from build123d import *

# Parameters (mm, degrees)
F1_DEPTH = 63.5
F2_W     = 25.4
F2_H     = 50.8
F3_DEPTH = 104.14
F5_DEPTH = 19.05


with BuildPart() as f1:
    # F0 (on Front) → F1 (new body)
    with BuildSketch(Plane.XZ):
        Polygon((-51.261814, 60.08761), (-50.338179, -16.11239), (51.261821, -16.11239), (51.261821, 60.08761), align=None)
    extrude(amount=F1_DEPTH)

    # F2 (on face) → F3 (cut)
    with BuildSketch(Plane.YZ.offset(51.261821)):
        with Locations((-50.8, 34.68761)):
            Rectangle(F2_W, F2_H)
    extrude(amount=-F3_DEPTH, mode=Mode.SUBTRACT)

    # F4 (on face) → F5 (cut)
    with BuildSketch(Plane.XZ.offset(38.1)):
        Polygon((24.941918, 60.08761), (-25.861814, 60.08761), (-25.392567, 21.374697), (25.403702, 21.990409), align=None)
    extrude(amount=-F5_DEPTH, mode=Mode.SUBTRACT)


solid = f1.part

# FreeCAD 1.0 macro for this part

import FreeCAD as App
import Part
import Sketcher
from FreeCAD import Vector
Q = App.Units.Quantity

doc = App.newDocument("Part")
params = doc.addObject("Spreadsheet::Sheet", "Params")
for row, (alias, value) in enumerate([
    ("sketch1_width", "4 in"),
    ("sketch1_height", "3 in"),
    ("pad1_length", "2.5 in"),
    ("sketch2_width", "1 in"),
    ("sketch2_height", "2 in"),
    ("pocket1_length", "4.1 in"),
    ("sketch3_length", "2 in"),
    ("sketch3_length2", "1.5 in"),
    ("pocket2_length", "0.75 in"),
], start=1):
    params.set(f"A{row}", alias)
    params.set(f"B{row}", "=" + value)
    params.setAlias(f"B{row}", alias)

body = doc.addObject("PartDesign::Body", "Body")

# Sketch on XZ plane
sketch1 = body.newObject("Sketcher::SketchObject", "Sketch")
sketch1.AttachmentSupport = (doc.getObject("XZ_Plane"), [""])
sketch1.MapMode = "FlatFace"
sketch1.addGeometry(Part.LineSegment(Vector(-51, 60, 0), Vector(-50, -16, 0)), False)
sketch1.addGeometry(Part.LineSegment(Vector(-50, -16, 0), Vector(51, -16, 0)), False)
sketch1.addGeometry(Part.LineSegment(Vector(51, -16, 0), Vector(51, 60, 0)), False)
sketch1.addGeometry(Part.LineSegment(Vector(51, 60, 0), Vector(-51, 60, 0)), False)
sketch1.addConstraint(Sketcher.Constraint("Coincident", 0, 2, 1, 1))
sketch1.addConstraint(Sketcher.Constraint("Coincident", 1, 2, 2, 1))
sketch1.addConstraint(Sketcher.Constraint("Coincident", 2, 2, 3, 1))
sketch1.addConstraint(Sketcher.Constraint("Coincident", 3, 2, 0, 1))
sketch1.addConstraint(Sketcher.Constraint("Horizontal", 1))
sketch1.addConstraint(Sketcher.Constraint("Vertical", 2))
sketch1.addConstraint(Sketcher.Constraint("Horizontal", 3))
sketch1.addConstraint(Sketcher.Constraint("DistanceX", 1, 1, 1, 2, Q("4 in")))
sketch1.addConstraint(Sketcher.Constraint("DistanceY", 2, 1, 2, 2, Q("3 in")))
sketch1.addConstraint(Sketcher.Constraint("DistanceX", 3, 2, 3, 1, Q("102.523635 mm")))
sketch1.addConstraint(Sketcher.Constraint("DistanceX", 0, 2, -1, 1, Q("50.338179 mm")))
sketch1.addConstraint(Sketcher.Constraint("DistanceY", 0, 2, -1, 1, Q("16.11239 mm")))
sketch1.setExpression("Constraints[7]", "Params.sketch1_width")
sketch1.setExpression("Constraints[8]", "Params.sketch1_height")
pad1 = body.newObject("PartDesign::Pad", "Pad")
pad1.Profile = sketch1
pad1.setExpression("Length", "Params.pad1_length")

# Sketch on YZ plane
sketch2 = body.newObject("Sketcher::SketchObject", "Sketch001")
sketch2.AttachmentSupport = (doc.getObject("YZ_Plane"), [""])
sketch2.MapMode = "FlatFace"
sketch2.AttachmentOffset = App.Placement(Vector(0, 0, 51.261821), App.Rotation())
sketch2.addGeometry(Part.LineSegment(Vector(-64, 60, 0), Vector(-64, 9, 0)), False)
sketch2.addGeometry(Part.LineSegment(Vector(-64, 9, 0), Vector(-38, 9, 0)), False)
sketch2.addGeometry(Part.LineSegment(Vector(-38, 9, 0), Vector(-38, 60, 0)), False)
sketch2.addGeometry(Part.LineSegment(Vector(-38, 60, 0), Vector(-64, 60, 0)), False)
sketch2.addConstraint(Sketcher.Constraint("Coincident", 0, 2, 1, 1))
sketch2.addConstraint(Sketcher.Constraint("Coincident", 1, 2, 2, 1))
sketch2.addConstraint(Sketcher.Constraint("Coincident", 2, 2, 3, 1))
sketch2.addConstraint(Sketcher.Constraint("Coincident", 3, 2, 0, 1))
sketch2.addConstraint(Sketcher.Constraint("Vertical", 0))
sketch2.addConstraint(Sketcher.Constraint("Horizontal", 1))
sketch2.addConstraint(Sketcher.Constraint("Vertical", 2))
sketch2.addConstraint(Sketcher.Constraint("Horizontal", 3))
sketch2.addConstraint(Sketcher.Constraint("DistanceX", 1, 1, 1, 2, Q("1 in")))
sketch2.addConstraint(Sketcher.Constraint("DistanceY", 0, 2, 0, 1, Q("2 in")))
sketch2.addConstraint(Sketcher.Constraint("DistanceX", 0, 2, -1, 1, Q("2.5 in")))
sketch2.addConstraint(Sketcher.Constraint("DistanceY", -1, 1, 0, 2, Q("9.28761 mm")))
sketch2.setExpression("Constraints[8]", "Params.sketch2_width")
sketch2.setExpression("Constraints[9]", "Params.sketch2_height")
pocket1 = body.newObject("PartDesign::Pocket", "Pocket")
pocket1.Profile = sketch2
pocket1.setExpression("Length", "Params.pocket1_length")

# Sketch on XZ plane
sketch3 = body.newObject("Sketcher::SketchObject", "Sketch002")
sketch3.AttachmentSupport = (doc.getObject("XZ_Plane"), [""])
sketch3.MapMode = "FlatFace"
sketch3.AttachmentOffset = App.Placement(Vector(0, 0, 1.5 * 25.4), App.Rotation())
sketch3.addGeometry(Part.LineSegment(Vector(24.941918, 60.08761, 0), Vector(-25.861814, 60.08761, 0)), False)
sketch3.addGeometry(Part.LineSegment(Vector(-25.861814, 60.08761, 0), Vector(-25.392567, 21.374697, 0)), False)
sketch3.addGeometry(Part.LineSegment(Vector(-25.392567, 21.374697, 0), Vector(25.403702, 21.990409, 0)), False)
sketch3.addGeometry(Part.LineSegment(Vector(25.403702, 21.990409, 0), Vector(24.941918, 60.08761, 0)), False)
sketch3.addConstraint(Sketcher.Constraint("Coincident", 0, 2, 1, 1))
sketch3.addConstraint(Sketcher.Constraint("Coincident", 1, 2, 2, 1))
sketch3.addConstraint(Sketcher.Constraint("Coincident", 2, 2, 3, 1))
sketch3.addConstraint(Sketcher.Constraint("Coincident", 3, 2, 0, 1))
sketch3.addConstraint(Sketcher.Constraint("Horizontal", 0))
sketch3.addConstraint(Sketcher.Constraint("Perpendicular", 1, 2))
sketch3.addConstraint(Sketcher.Constraint("Perpendicular", 2, 3))
sketch3.addConstraint(Sketcher.Constraint("Distance", 2, Q("2 in")))
sketch3.addConstraint(Sketcher.Constraint("Distance", 3, Q("1.5 in")))
sketch3.addConstraint(Sketcher.Constraint("DistanceX", 0, 2, 0, 1, Q("50.803732 mm")))
sketch3.addConstraint(Sketcher.Constraint("DistanceX", -1, 1, 2, 2, Q("25.403702 mm")))
sketch3.addConstraint(Sketcher.Constraint("DistanceY", -1, 1, 0, 2, Q("60.08761 mm")))
sketch3.setExpression("Constraints[7]", "Params.sketch3_length")
sketch3.setExpression("Constraints[8]", "Params.sketch3_length2")
pocket2 = body.newObject("PartDesign::Pocket", "Pocket001")
pocket2.Profile = sketch3
pocket2.setExpression("Length", "Params.pocket2_length")

doc.recompute()
